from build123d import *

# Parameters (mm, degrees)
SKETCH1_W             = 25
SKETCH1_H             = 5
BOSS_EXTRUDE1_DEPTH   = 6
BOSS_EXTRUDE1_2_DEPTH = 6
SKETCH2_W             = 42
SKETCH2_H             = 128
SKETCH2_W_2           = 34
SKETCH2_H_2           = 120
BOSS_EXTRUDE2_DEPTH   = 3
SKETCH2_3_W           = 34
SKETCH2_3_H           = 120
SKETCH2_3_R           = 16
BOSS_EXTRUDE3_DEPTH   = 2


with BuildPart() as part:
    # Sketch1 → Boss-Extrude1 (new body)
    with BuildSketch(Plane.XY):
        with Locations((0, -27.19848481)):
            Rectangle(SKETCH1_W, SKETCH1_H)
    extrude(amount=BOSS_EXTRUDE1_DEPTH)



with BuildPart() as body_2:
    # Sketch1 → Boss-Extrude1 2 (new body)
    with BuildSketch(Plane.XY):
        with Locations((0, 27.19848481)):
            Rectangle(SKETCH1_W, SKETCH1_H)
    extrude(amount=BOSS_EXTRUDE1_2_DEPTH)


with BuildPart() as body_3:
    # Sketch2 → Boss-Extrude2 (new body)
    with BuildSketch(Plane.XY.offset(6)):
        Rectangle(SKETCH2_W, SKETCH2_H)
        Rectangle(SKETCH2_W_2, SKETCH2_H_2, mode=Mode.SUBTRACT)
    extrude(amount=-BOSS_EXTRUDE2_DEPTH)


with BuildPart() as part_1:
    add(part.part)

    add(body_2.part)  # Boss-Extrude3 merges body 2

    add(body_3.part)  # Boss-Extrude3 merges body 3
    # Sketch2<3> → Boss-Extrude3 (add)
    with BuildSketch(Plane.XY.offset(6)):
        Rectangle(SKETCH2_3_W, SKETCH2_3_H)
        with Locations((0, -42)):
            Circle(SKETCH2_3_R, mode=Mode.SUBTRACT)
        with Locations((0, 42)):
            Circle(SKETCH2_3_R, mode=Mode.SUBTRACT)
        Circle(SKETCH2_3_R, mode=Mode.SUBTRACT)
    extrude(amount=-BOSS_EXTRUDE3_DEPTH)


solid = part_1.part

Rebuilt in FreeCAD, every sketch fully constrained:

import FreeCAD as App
import Part
import Sketcher

doc = App.newDocument("Part")
body = doc.addObject("PartDesign::Body", "Body")

# Sketch on XY plane
sketch1 = body.newObject("Sketcher::SketchObject", "Sketch")
sketch1.AttachmentSupport = (doc.getObject("XY_Plane"), [""])
sketch1.MapMode = "FlatFace"
sketch1.addGeometry(Part.LineSegment(App.Vector(-12.5, -24.698485, 0), App.Vector(-12.5, -29.698485, 0)), False)
sketch1.addGeometry(Part.LineSegment(App.Vector(-12.5, -29.698485, 0), App.Vector(12.5, -29.698485, 0)), False)
sketch1.addGeometry(Part.LineSegment(App.Vector(12.5, -29.698485, 0), App.Vector(12.5, -24.698485, 0)), False)
sketch1.addGeometry(Part.LineSegment(App.Vector(12.5, -24.698485, 0), App.Vector(-12.5, -24.698485, 0)), False)
sketch1.addConstraint(Sketcher.Constraint("Coincident", 0, 2, 1, 1))
sketch1.addConstraint(Sketcher.Constraint("Coincident", 1, 2, 2, 1))
sketch1.addConstraint(Sketcher.Constraint("Coincident", 2, 2, 3, 1))
sketch1.addConstraint(Sketcher.Constraint("Coincident", 3, 2, 0, 1))
sketch1.addConstraint(Sketcher.Constraint("Vertical", 0))
sketch1.addConstraint(Sketcher.Constraint("Horizontal", 1))
sketch1.addConstraint(Sketcher.Constraint("Vertical", 2))
sketch1.addConstraint(Sketcher.Constraint("Horizontal", 3))
sketch1.addConstraint(Sketcher.Constraint("DistanceX", 1, 1, 1, 2, 25.0))
sketch1.addConstraint(Sketcher.Constraint("DistanceY", 0, 2, 0, 1, 5.0))
sketch1.addConstraint(Sketcher.Constraint("DistanceX", 0, 2, -1, 1, 12.5))
sketch1.addConstraint(Sketcher.Constraint("DistanceY", 0, 2, -1, 1, 29.698485))
pad1 = body.newObject("PartDesign::Pad", "Pad")
pad1.Profile = sketch1
pad1.Length = 6
body2 = doc.addObject("PartDesign::Body", "Body001")

# Sketch on XY plane
sketch2 = body2.newObject("Sketcher::SketchObject", "Sketch001")
sketch2.AttachmentSupport = (doc.getObject("XY_Plane001"), [""])
sketch2.MapMode = "FlatFace"
sketch2.addGeometry(Part.LineSegment(App.Vector(-12.5, 29.698485, 0), App.Vector(-12.5, 24.698485, 0)), False)
sketch2.addGeometry(Part.LineSegment(App.Vector(-12.5, 24.698485, 0), App.Vector(12.5, 24.698485, 0)), False)
sketch2.addGeometry(Part.LineSegment(App.Vector(12.5, 24.698485, 0), App.Vector(12.5, 29.698485, 0)), False)
sketch2.addGeometry(Part.LineSegment(App.Vector(12.5, 29.698485, 0), App.Vector(-12.5, 29.698485, 0)), False)
sketch2.addConstraint(Sketcher.Constraint("Coincident", 0, 2, 1, 1))
sketch2.addConstraint(Sketcher.Constraint("Coincident", 1, 2, 2, 1))
sketch2.addConstraint(Sketcher.Constraint("Coincident", 2, 2, 3, 1))
sketch2.addConstraint(Sketcher.Constraint("Coincident", 3, 2, 0, 1))
sketch2.addConstraint(Sketcher.Constraint("Vertical", 0))
sketch2.addConstraint(Sketcher.Constraint("Horizontal", 1))
sketch2.addConstraint(Sketcher.Constraint("Vertical", 2))
sketch2.addConstraint(Sketcher.Constraint("Horizontal", 3))
sketch2.addConstraint(Sketcher.Constraint("DistanceX", 1, 1, 1, 2, 25.0))
sketch2.addConstraint(Sketcher.Constraint("DistanceY", 0, 2, 0, 1, 5.0))
sketch2.addConstraint(Sketcher.Constraint("DistanceX", 0, 2, -1, 1, 12.5))
sketch2.addConstraint(Sketcher.Constraint("DistanceY", -1, 1, 0, 2, 24.698485))
pad2 = body2.newObject("PartDesign::Pad", "Pad001")
pad2.Profile = sketch2
pad2.Length = 6
body3 = doc.addObject("PartDesign::Body", "Body002")

# Sketch on XY plane
sketch3 = body3.newObject("Sketcher::SketchObject", "Sketch002")
sketch3.AttachmentSupport = (doc.getObject("XY_Plane002"), [""])
sketch3.MapMode = "FlatFace"
sketch3.AttachmentOffset = App.Placement(App.Vector(0, 0, 6), App.Rotation())
sketch3.addGeometry(Part.LineSegment(App.Vector(-21, 64, 0), App.Vector(-21, -64, 0)), False)
sketch3.addGeometry(Part.LineSegment(App.Vector(-21, -64, 0), App.Vector(21, -64, 0)), False)
sketch3.addGeometry(Part.LineSegment(App.Vector(21, -64, 0), App.Vector(21, 64, 0)), False)
sketch3.addGeometry(Part.LineSegment(App.Vector(21, 64, 0), App.Vector(-21, 64, 0)), False)
sketch3.addGeometry(Part.LineSegment(App.Vector(17, -60, 0), App.Vector(-17, -60, 0)), False)
sketch3.addGeometry(Part.LineSegment(App.Vector(-17, -60, 0), App.Vector(-17, 60, 0)), False)
sketch3.addGeometry(Part.LineSegment(App.Vector(-17, 60, 0), App.Vector(17, 60, 0)), False)
sketch3.addGeometry(Part.LineSegment(App.Vector(17, 60, 0), App.Vector(17, -60, 0)), False)
sketch3.addConstraint(Sketcher.Constraint("Coincident", 0, 2, 1, 1))
sketch3.addConstraint(Sketcher.Constraint("Coincident", 1, 2, 2, 1))
sketch3.addConstraint(Sketcher.Constraint("Coincident", 2, 2, 3, 1))
sketch3.addConstraint(Sketcher.Constraint("Coincident", 3, 2, 0, 1))
sketch3.addConstraint(Sketcher.Constraint("Coincident", 4, 2, 5, 1))
sketch3.addConstraint(Sketcher.Constraint("Coincident", 5, 2, 6, 1))
sketch3.addConstraint(Sketcher.Constraint("Coincident", 6, 2, 7, 1))
sketch3.addConstraint(Sketcher.Constraint("Coincident", 7, 2, 4, 1))
sketch3.addConstraint(Sketcher.Constraint("Vertical", 0))
sketch3.addConstraint(Sketcher.Constraint("Horizontal", 1))
sketch3.addConstraint(Sketcher.Constraint("Vertical", 2))
sketch3.addConstraint(Sketcher.Constraint("Horizontal", 3))
sketch3.addConstraint(Sketcher.Constraint("Horizontal", 4))
sketch3.addConstraint(Sketcher.Constraint("Vertical", 5))
sketch3.addConstraint(Sketcher.Constraint("Horizontal", 6))
sketch3.addConstraint(Sketcher.Constraint("Vertical", 7))
sketch3.addConstraint(Sketcher.Constraint("Symmetric", 0, 2, 2, 2, -1, 1))
sketch3.addConstraint(Sketcher.Constraint("Symmetric", 4, 2, 6, 2, -1, 1))
sketch3.addConstraint(Sketcher.Constraint("DistanceX", 1, 1, 1, 2, 42.0))
sketch3.addConstraint(Sketcher.Constraint("DistanceX", 4, 2, 4, 1, 34.0))
sketch3.addConstraint(Sketcher.Constraint("DistanceY", 0, 2, 0, 1, 128.0))
sketch3.addConstraint(Sketcher.Constraint("DistanceY", 5, 1, 5, 2, 120.0))
pad3 = body3.newObject("PartDesign::Pad", "Pad002")
pad3.Profile = sketch3
pad3.Length = 3
pad3.Reversed = True
body.AllowCompound = True
doc.recompute()

boolean = body.newObject("PartDesign::Boolean", "Boolean")
boolean.Type = "Fuse"
boolean.addObjects([body2])
doc.recompute()

boolean2 = body.newObject("PartDesign::Boolean", "Boolean001")
boolean2.Type = "Fuse"
boolean2.addObjects([body3])

# Sketch on XY plane
sketch4 = body.newObject("Sketcher::SketchObject", "Sketch003")
sketch4.AttachmentSupport = (doc.getObject("XY_Plane"), [""])
sketch4.MapMode = "FlatFace"
sketch4.AttachmentOffset = App.Placement(App.Vector(0, 0, 6), App.Rotation())
sketch4.addGeometry(Part.LineSegment(App.Vector(-17, 60, 0), App.Vector(-17, -60, 0)), False)
sketch4.addGeometry(Part.LineSegment(App.Vector(-17, -60, 0), App.Vector(17, -60, 0)), False)
sketch4.addGeometry(Part.LineSegment(App.Vector(17, -60, 0), App.Vector(17, 60, 0)), False)
sketch4.addGeometry(Part.LineSegment(App.Vector(17, 60, 0), App.Vector(-17, 60, 0)), False)
sketch4.addGeometry(Part.Circle(App.Vector(0, -42, 0), App.Vector(0, 0, 1), 16), False)
sketch4.addGeometry(Part.Circle(App.Vector(0, 0, 0), App.Vector(0, 0, 1), 16), False)
sketch4.addGeometry(Part.Circle(App.Vector(0, 42, 0), App.Vector(0, 0, 1), 16), False)
sketch4.addConstraint(Sketcher.Constraint("Coincident", 0, 2, 1, 1))
sketch4.addConstraint(Sketcher.Constraint("Coincident", 1, 2, 2, 1))
sketch4.addConstraint(Sketcher.Constraint("Coincident", 2, 2, 3, 1))
sketch4.addConstraint(Sketcher.Constraint("Coincident", 3, 2, 0, 1))
sketch4.addConstraint(Sketcher.Constraint("Vertical", 0))
sketch4.addConstraint(Sketcher.Constraint("Horizontal", 1))
sketch4.addConstraint(Sketcher.Constraint("Vertical", 2))
sketch4.addConstraint(Sketcher.Constraint("Horizontal", 3))
sketch4.addConstraint(Sketcher.Constraint("Coincident", 5, 3, -1, 1))
sketch4.addConstraint(Sketcher.Constraint("Equal", 4, 5))
sketch4.addConstraint(Sketcher.Constraint("Equal", 5, 6))
sketch4.addConstraint(Sketcher.Constraint("Symmetric", 4, 3, 6, 3, -1, 1))
sketch4.addConstraint(Sketcher.Constraint("Symmetric", 0, 2, 2, 2, -1, 1))
sketch4.addConstraint(Sketcher.Constraint("PointOnObject", 4, 3, -2))
sketch4.addConstraint(Sketcher.Constraint("Diameter", 4, 32.0))
sketch4.addConstraint(Sketcher.Constraint("DistanceX", 1, 1, 1, 2, 34.0))
sketch4.addConstraint(Sketcher.Constraint("DistanceY", 0, 2, 0, 1, 120.0))
sketch4.addConstraint(Sketcher.Constraint("DistanceY", 4, 3, -1, 1, 42.0))
pad4 = body.newObject("PartDesign::Pad", "Pad003")
pad4.Profile = sketch4
pad4.Length = 2
pad4.Reversed = True

doc.recompute()
